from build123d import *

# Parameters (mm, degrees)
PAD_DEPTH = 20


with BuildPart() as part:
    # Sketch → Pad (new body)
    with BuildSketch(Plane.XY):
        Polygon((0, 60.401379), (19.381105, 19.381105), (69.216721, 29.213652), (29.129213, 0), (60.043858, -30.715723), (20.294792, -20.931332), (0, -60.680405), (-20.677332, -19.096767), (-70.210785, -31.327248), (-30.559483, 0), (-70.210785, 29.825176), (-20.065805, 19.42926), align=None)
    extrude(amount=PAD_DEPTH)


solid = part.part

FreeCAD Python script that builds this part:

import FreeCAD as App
import Part
import Sketcher

V = App.Vector
Q = App.Units.Quantity


def add_polygon(sketch, points):
    """Adds a closed chain of lines whose ends are joined by coincident constraints."""
    first, n = sketch.GeometryCount, len(points)
    for a, b in zip(points, points[1:] + points[:1]):
        sketch.addGeometry(Part.LineSegment(App.Vector(*a, 0), App.Vector(*b, 0)), False)
    for i in range(n):
        sketch.addConstraint(Sketcher.Constraint("Coincident", first + i, 2, first + (i + 1) % n, 1))

doc = App.newDocument("Part")
body = doc.addObject("PartDesign::Body", "Body")

# Sketch on XY plane
sketch1 = body.newObject("Sketcher::SketchObject", "Sketch")
sketch1.AttachmentSupport = (doc.getObject("XY_Plane"), [""])
sketch1.MapMode = "FlatFace"
add_polygon(sketch1, [(19.381105, 19.381105), (0, 60.401379), (-20.065805, 19.42926), (-70.210785, 29.825176), (-30.559483, 0), (-70.210785, -31.327248), (-20.677332, -19.096767), (0, -60.680405), (20.294792, -20.931332), (60.043858, -30.715723), (29.129213, 0), (69.216721, 29.213652)])  # lines 0-11
sketch1.addConstraint(Sketcher.Constraint("PointOnObject", 0, 2, -2))
sketch1.addConstraint(Sketcher.Constraint("PointOnObject", 3, 2, -1))
sketch1.addConstraint(Sketcher.Constraint("PointOnObject", 6, 2, -2))
sketch1.addConstraint(Sketcher.Constraint("PointOnObject", 9, 2, -1))
sketch1.addConstraint(Sketcher.Constraint("Vertical", 2, 2, 4, 2))
sketch1.addConstraint(Sketcher.Constraint("Angle", 3, Q("-36.949993 deg")))
sketch1.addConstraint(Sketcher.Constraint("Distance", 2, 51.211269))
sketch1.addConstraint(Sketcher.Constraint("Distance", 5, 51.021051))
sketch1.addConstraint(Sketcher.Constraint("Distance", 7, 44.630342))
sketch1.addConstraint(Sketcher.Constraint("Distance", 8, 40.93559))
sketch1.addConstraint(Sketcher.Constraint("Distance", 9, 43.579478))
sketch1.addConstraint(Sketcher.Constraint("Distance", 10, 49.602881))
sketch1.addConstraint(Sketcher.Constraint("DistanceY", -1, 1, 0, 2, 60.401379))
sketch1.addConstraint(Sketcher.Constraint("DistanceY", -1, 1, 1, 2, 19.42926))
sketch1.addConstraint(Sketcher.Constraint("DistanceY", 4, 2, -1, 1, 31.327248))
sketch1.addConstraint(Sketcher.Constraint("DistanceX", 5, 2, -1, 1, 20.677332))
sketch1.addConstraint(Sketcher.Constraint("DistanceX", -1, 1, 10, 2, 69.216721))
sketch1.addConstraint(Sketcher.Constraint("DistanceY", -1, 1, 10, 2, 29.213652))
sketch1.addConstraint(Sketcher.Constraint("DistanceX", 2, 2, 1, 2, 50.14498))
sketch1.addConstraint(Sketcher.Constraint("DistanceX", 3, 2, 5, 2, 9.882151))
sketch1.addConstraint(Sketcher.Constraint("DistanceY", 6, 2, 2, 2, 90.505581))
sketch1.addConstraint(Sketcher.Constraint("DistanceY", 7, 2, 1, 2, 40.360592))
sketch1.addConstraint(Sketcher.Constraint("DistanceX", 1, 2, 11, 2, 39.44691))
sketch1.addConstraint(Sketcher.Constraint("Distance", 0, 45.368382))
pad1 = body.newObject("PartDesign::Pad", "Pad")
pad1.Profile = sketch1
pad1.Length = 20

doc.recompute()
